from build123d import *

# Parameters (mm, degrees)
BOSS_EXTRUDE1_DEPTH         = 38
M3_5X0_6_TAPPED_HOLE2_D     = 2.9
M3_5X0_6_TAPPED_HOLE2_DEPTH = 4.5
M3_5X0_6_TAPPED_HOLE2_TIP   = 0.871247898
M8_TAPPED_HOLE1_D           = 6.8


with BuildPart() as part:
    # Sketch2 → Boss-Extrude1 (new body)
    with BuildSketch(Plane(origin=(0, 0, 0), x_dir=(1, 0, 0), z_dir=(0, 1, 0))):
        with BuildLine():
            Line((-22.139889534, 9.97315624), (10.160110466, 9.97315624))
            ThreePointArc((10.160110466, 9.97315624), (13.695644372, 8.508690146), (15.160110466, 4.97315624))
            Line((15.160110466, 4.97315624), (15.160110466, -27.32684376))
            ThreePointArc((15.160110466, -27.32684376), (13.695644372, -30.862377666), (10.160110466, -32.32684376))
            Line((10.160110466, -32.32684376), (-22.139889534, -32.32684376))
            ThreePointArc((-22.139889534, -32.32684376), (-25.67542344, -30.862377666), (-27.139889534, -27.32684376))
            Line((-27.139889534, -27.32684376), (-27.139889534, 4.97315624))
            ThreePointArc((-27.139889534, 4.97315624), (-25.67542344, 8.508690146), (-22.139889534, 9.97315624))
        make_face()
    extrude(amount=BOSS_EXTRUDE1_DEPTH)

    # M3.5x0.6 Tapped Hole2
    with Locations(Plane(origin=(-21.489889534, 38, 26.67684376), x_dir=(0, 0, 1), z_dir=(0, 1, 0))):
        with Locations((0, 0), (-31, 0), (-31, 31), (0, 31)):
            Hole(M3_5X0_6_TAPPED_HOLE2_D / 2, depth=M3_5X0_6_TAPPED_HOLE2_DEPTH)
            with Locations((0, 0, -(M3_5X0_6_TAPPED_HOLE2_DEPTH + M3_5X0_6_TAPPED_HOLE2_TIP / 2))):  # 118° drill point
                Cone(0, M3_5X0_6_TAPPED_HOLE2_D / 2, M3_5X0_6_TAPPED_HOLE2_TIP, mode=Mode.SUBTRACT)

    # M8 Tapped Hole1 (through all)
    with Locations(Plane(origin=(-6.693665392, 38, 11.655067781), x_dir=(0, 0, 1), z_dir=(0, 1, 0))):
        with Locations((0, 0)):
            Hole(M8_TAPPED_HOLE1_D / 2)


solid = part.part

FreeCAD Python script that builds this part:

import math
import FreeCAD as App
import Part
import Sketcher

V = App.Vector

doc = App.newDocument("Part")
body = doc.addObject("PartDesign::Body", "Body")

sketch1 = body.newObject("Sketcher::SketchObject", "Sketch")
sketch1.AttachmentSupport = (doc.getObject("XZ_Plane"), [""])
sketch1.MapMode = "FlatFace"
sketch1.addGeometry(Part.LineSegment(V(10, -10, 0), V(-22, -10, 0)), False)
sketch1.addGeometry(Part.ArcOfCircle(Part.Circle(V(-22, -5, 0), V(0, 0, 1), 5), math.radians(180), math.radians(270)), False)
sketch1.addGeometry(Part.LineSegment(V(-27, -5, 0), V(-27, 27, 0)), False)
sketch1.addGeometry(Part.ArcOfCircle(Part.Circle(V(-22, 27, 0), V(0, 0, 1), 5), math.radians(90), math.radians(180)), False)
sketch1.addGeometry(Part.LineSegment(V(-22, 32, 0), V(10, 32, 0)), False)
sketch1.addGeometry(Part.ArcOfCircle(Part.Circle(V(10, 27, 0), V(0, 0, 1), 5), math.radians(0), math.radians(90)), False)
sketch1.addGeometry(Part.LineSegment(V(15, 27, 0), V(15, -5, 0)), False)
sketch1.addGeometry(Part.ArcOfCircle(Part.Circle(V(10, -5, 0), V(0, 0, 1), 5), math.radians(-90), math.radians(0)), False)
sketch1.addConstraint(Sketcher.Constraint("Tangent", 0, 2, 1, 2))
sketch1.addConstraint(Sketcher.Constraint("Tangent", 1, 1, 2, 1))
sketch1.addConstraint(Sketcher.Constraint("Tangent", 2, 2, 3, 2))
sketch1.addConstraint(Sketcher.Constraint("Tangent", 3, 1, 4, 1))
sketch1.addConstraint(Sketcher.Constraint("Tangent", 4, 2, 5, 2))
sketch1.addConstraint(Sketcher.Constraint("Tangent", 5, 1, 6, 1))
sketch1.addConstraint(Sketcher.Constraint("Tangent", 6, 2, 7, 2))
sketch1.addConstraint(Sketcher.Constraint("Tangent", 7, 1, 0, 1))
sketch1.addConstraint(Sketcher.Constraint("Horizontal", 0))
sketch1.addConstraint(Sketcher.Constraint("Vertical", 2))
sketch1.addConstraint(Sketcher.Constraint("Horizontal", 4))
sketch1.addConstraint(Sketcher.Constraint("Vertical", 6))
sketch1.addConstraint(Sketcher.Constraint("Equal", 1, 3))
sketch1.addConstraint(Sketcher.Constraint("Equal", 3, 5))
sketch1.addConstraint(Sketcher.Constraint("Equal", 5, 7))
sketch1.addConstraint(Sketcher.Constraint("Equal", 4, 2))
sketch1.addConstraint(Sketcher.Constraint("Radius", 1, 5.0))
sketch1.addConstraint(Sketcher.Constraint("DistanceX", 0, 2, 0, 1, 32.3))
sketch1.addConstraint(Sketcher.Constraint("DistanceX", 1, 3, -1, 1, 22.13989))
sketch1.addConstraint(Sketcher.Constraint("DistanceY", 1, 3, -1, 1, 4.973156))
pad1 = body.newObject("PartDesign::Pad", "Pad")
pad1.Profile = sketch1
pad1.Length = 38
pad1.Reversed = True

sketch2 = body.newObject("Sketcher::SketchObject", "Sketch001")
sketch2.AttachmentSupport = (doc.getObject("XZ_Plane"), [""])
sketch2.MapMode = "FlatFace"
sketch2.AttachmentOffset = App.Placement(V(0, 0, -38), App.Rotation())
sketch2.addGeometry(Part.Circle(V(-21.5, 26.7, 0), V(0, 0, 1), 1.4), False)
sketch2.addGeometry(Part.Circle(V(-21.5, -4.3, 0), V(0, 0, 1), 1.4), False)
sketch2.addGeometry(Part.Circle(V(9.5, -4.3, 0), V(0, 0, 1), 1.4), False)
sketch2.addGeometry(Part.Circle(V(9.5, 26.7, 0), V(0, 0, 1), 1.4), False)
sketch2.addConstraint(Sketcher.Constraint("Equal", 0, 1))
sketch2.addConstraint(Sketcher.Constraint("Equal", 1, 2))
sketch2.addConstraint(Sketcher.Constraint("Equal", 2, 3))
sketch2.addConstraint(Sketcher.Constraint("Horizontal", 1, 3, 2, 3))
sketch2.addConstraint(Sketcher.Constraint("Horizontal", 0, 3, 3, 3))
sketch2.addConstraint(Sketcher.Constraint("Vertical", 0, 3, 1, 3))
sketch2.addConstraint(Sketcher.Constraint("Vertical", 2, 3, 3, 3))
sketch2.addConstraint(Sketcher.Constraint("Diameter", 0, 2.9))
sketch2.addConstraint(Sketcher.Constraint("DistanceY", 1, 3, 0, 3, 31.0))
sketch2.addConstraint(Sketcher.Constraint("DistanceX", 1, 3, 2, 3, 31.0))
sketch2.addConstraint(Sketcher.Constraint("DistanceX", 0, 3, -1, 1, 21.48989))
sketch2.addConstraint(Sketcher.Constraint("DistanceY", -1, 1, 0, 3, 26.676844))
doc.recompute()
hole = body.newObject("PartDesign::Hole", "Hole")
hole.Profile = sketch2
hole.ThreadType = "None"
hole.Diameter = 2.9
hole.DepthType = "Dimension"
hole.Depth = 4.5
hole.DrillPoint = "Angled"
hole.DrillPointAngle = 118
hole.Reversed = True

sketch3 = body.newObject("Sketcher::SketchObject", "Sketch002")
sketch3.AttachmentSupport = (doc.getObject("XZ_Plane"), [""])
sketch3.MapMode = "FlatFace"
sketch3.AttachmentOffset = App.Placement(V(0, 0, -38), App.Rotation())
sketch3.addGeometry(Part.Circle(V(-6.7, 11.7, 0), V(0, 0, 1), 3.4), False)
sketch3.addConstraint(Sketcher.Constraint("Diameter", 0, 6.8))
sketch3.addConstraint(Sketcher.Constraint("DistanceX", 0, 3, -1, 1, 6.693665))
sketch3.addConstraint(Sketcher.Constraint("DistanceY", -1, 1, 0, 3, 11.655068))
doc.recompute()
hole2 = body.newObject("PartDesign::Hole", "Hole001")
hole2.Profile = sketch3
hole2.ThreadType = "None"
hole2.Diameter = 6.8
hole2.DepthType = "ThroughAll"
hole2.Reversed = True

doc.recompute()
